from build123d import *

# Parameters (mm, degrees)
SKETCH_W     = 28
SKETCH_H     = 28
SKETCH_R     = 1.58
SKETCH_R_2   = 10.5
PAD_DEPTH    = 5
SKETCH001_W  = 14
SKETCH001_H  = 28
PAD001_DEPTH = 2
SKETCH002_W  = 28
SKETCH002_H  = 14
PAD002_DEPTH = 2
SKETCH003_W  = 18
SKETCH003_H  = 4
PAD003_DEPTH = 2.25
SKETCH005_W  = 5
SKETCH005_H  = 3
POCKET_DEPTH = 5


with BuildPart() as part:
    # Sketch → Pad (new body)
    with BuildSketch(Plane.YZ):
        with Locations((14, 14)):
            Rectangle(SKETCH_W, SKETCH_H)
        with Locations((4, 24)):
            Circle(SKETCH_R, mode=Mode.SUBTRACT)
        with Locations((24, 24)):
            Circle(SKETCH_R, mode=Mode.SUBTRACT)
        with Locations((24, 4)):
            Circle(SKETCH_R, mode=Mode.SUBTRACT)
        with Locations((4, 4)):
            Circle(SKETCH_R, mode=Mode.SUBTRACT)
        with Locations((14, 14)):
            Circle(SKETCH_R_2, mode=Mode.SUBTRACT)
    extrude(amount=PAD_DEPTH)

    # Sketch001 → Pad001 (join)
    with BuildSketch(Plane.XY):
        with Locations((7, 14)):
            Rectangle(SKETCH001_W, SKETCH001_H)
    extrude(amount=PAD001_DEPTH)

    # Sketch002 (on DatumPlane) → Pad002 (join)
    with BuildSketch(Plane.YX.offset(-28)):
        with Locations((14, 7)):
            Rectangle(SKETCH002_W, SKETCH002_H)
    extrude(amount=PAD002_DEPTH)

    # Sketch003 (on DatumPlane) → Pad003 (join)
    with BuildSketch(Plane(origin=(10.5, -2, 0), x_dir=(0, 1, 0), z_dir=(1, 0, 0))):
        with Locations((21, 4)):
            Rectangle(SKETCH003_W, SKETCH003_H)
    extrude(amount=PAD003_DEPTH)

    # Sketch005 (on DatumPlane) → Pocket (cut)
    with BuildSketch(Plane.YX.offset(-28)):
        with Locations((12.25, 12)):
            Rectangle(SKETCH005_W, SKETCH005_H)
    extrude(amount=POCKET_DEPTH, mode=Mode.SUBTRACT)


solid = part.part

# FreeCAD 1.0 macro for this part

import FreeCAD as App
import Part
import Sketcher
from FreeCAD import Vector

doc = App.newDocument("Part")
body = doc.addObject("PartDesign::Body", "Body")

# Sketch on YZ plane
sketch1 = body.newObject("Sketcher::SketchObject", "Sketch")
sketch1.AttachmentSupport = (doc.getObject("YZ_Plane"), [""])
sketch1.MapMode = "FlatFace"
sketch1.addGeometry(Part.LineSegment(Vector(0, 28, 0), Vector(0, 0, 0)), False)
sketch1.addGeometry(Part.LineSegment(Vector(0, 0, 0), Vector(28, 0, 0)), False)
sketch1.addGeometry(Part.LineSegment(Vector(28, 0, 0), Vector(28, 28, 0)), False)
sketch1.addGeometry(Part.LineSegment(Vector(28, 28, 0), Vector(0, 28, 0)), False)
sketch1.addGeometry(Part.Circle(Vector(4, 4, 0), Vector(0, 0, 1), 1.6), False)
sketch1.addGeometry(Part.Circle(Vector(24, 4, 0), Vector(0, 0, 1), 1.6), False)
sketch1.addGeometry(Part.Circle(Vector(4, 24, 0), Vector(0, 0, 1), 1.6), False)
sketch1.addGeometry(Part.Circle(Vector(14, 14, 0), Vector(0, 0, 1), 10.5), False)
sketch1.addGeometry(Part.Circle(Vector(24, 24, 0), Vector(0, 0, 1), 1.6), False)
sketch1.addConstraint(Sketcher.Constraint("Coincident", 0, 2, 1, 1))
sketch1.addConstraint(Sketcher.Constraint("Coincident", 1, 2, 2, 1))
sketch1.addConstraint(Sketcher.Constraint("Coincident", 2, 2, 3, 1))
sketch1.addConstraint(Sketcher.Constraint("Coincident", 3, 2, 0, 1))
sketch1.addConstraint(Sketcher.Constraint("Vertical", 0))
sketch1.addConstraint(Sketcher.Constraint("Horizontal", 1))
sketch1.addConstraint(Sketcher.Constraint("Vertical", 2))
sketch1.addConstraint(Sketcher.Constraint("Horizontal", 3))
sketch1.addConstraint(Sketcher.Constraint("Coincident", 0, 2, -1, 1))
sketch1.addConstraint(Sketcher.Constraint("Equal", 4, 5))
sketch1.addConstraint(Sketcher.Constraint("Equal", 5, 6))
sketch1.addConstraint(Sketcher.Constraint("Equal", 6, 8))
sketch1.addConstraint(Sketcher.Constraint("Horizontal", 4, 3, 5, 3))
sketch1.addConstraint(Sketcher.Constraint("Horizontal", 6, 3, 8, 3))
sketch1.addConstraint(Sketcher.Constraint("Vertical", 4, 3, 6, 3))
sketch1.addConstraint(Sketcher.Constraint("Vertical", 5, 3, 8, 3))
sketch1.addConstraint(Sketcher.Constraint("Equal", 3, 0))
sketch1.addConstraint(Sketcher.Constraint("Diameter", 7, 21.0))
sketch1.addConstraint(Sketcher.Constraint("Diameter", 4, 3.16))
sketch1.addConstraint(Sketcher.Constraint("DistanceX", 1, 1, 1, 2, 28.0))
sketch1.addConstraint(Sketcher.Constraint("DistanceX", -1, 1, 4, 3, 4.0))
sketch1.addConstraint(Sketcher.Constraint("DistanceY", -1, 1, 4, 3, 4.0))
sketch1.addConstraint(Sketcher.Constraint("DistanceX", -1, 1, 5, 3, 24.0))
sketch1.addConstraint(Sketcher.Constraint("DistanceY", -1, 1, 6, 3, 24.0))
sketch1.addConstraint(Sketcher.Constraint("DistanceX", -1, 1, 7, 3, 14.0))
sketch1.addConstraint(Sketcher.Constraint("DistanceY", -1, 1, 7, 3, 14.0))
pad1 = body.newObject("PartDesign::Pad", "Pad")
pad1.Profile = sketch1
pad1.Length = 5

# Sketch on XY plane
sketch2 = body.newObject("Sketcher::SketchObject", "Sketch001")
sketch2.AttachmentSupport = (doc.getObject("XY_Plane"), [""])
sketch2.MapMode = "FlatFace"
sketch2.addGeometry(Part.LineSegment(Vector(0, 28, 0), Vector(0, 0, 0)), False)
sketch2.addGeometry(Part.LineSegment(Vector(0, 0, 0), Vector(14, 0, 0)), False)
sketch2.addGeometry(Part.LineSegment(Vector(14, 0, 0), Vector(14, 28, 0)), False)
sketch2.addGeometry(Part.LineSegment(Vector(14, 28, 0), Vector(0, 28, 0)), False)
sketch2.addConstraint(Sketcher.Constraint("Coincident", 0, 2, 1, 1))
sketch2.addConstraint(Sketcher.Constraint("Coincident", 1, 2, 2, 1))
sketch2.addConstraint(Sketcher.Constraint("Coincident", 2, 2, 3, 1))
sketch2.addConstraint(Sketcher.Constraint("Coincident", 3, 2, 0, 1))
sketch2.addConstraint(Sketcher.Constraint("Vertical", 0))
sketch2.addConstraint(Sketcher.Constraint("Horizontal", 1))
sketch2.addConstraint(Sketcher.Constraint("Vertical", 2))
sketch2.addConstraint(Sketcher.Constraint("Horizontal", 3))
sketch2.addConstraint(Sketcher.Constraint("Coincident", 0, 2, -1, 1))
sketch2.addConstraint(Sketcher.Constraint("DistanceX", 1, 1, 1, 2, 14.0))
sketch2.addConstraint(Sketcher.Constraint("DistanceY", 0, 2, 0, 1, 28.0))
pad2 = body.newObject("PartDesign::Pad", "Pad001")
pad2.Profile = sketch2
pad2.Length = 2

# Sketch on XY plane
sketch3 = body.newObject("Sketcher::SketchObject", "Sketch002")
sketch3.AttachmentSupport = (doc.getObject("XY_Plane"), [""])
sketch3.MapMode = "FlatFace"
sketch3.AttachmentOffset = App.Placement(Vector(0, 0, 28), App.Rotation())
sketch3.addGeometry(Part.LineSegment(Vector(14, 0, 0), Vector(0, 0, 0)), False)
sketch3.addGeometry(Part.LineSegment(Vector(0, 0, 0), Vector(0, 28, 0)), False)
sketch3.addGeometry(Part.LineSegment(Vector(0, 28, 0), Vector(14, 28, 0)), False)
sketch3.addGeometry(Part.LineSegment(Vector(14, 28, 0), Vector(14, 0, 0)), False)
sketch3.addConstraint(Sketcher.Constraint("Coincident", 0, 2, 1, 1))
sketch3.addConstraint(Sketcher.Constraint("Coincident", 1, 2, 2, 1))
sketch3.addConstraint(Sketcher.Constraint("Coincident", 2, 2, 3, 1))
sketch3.addConstraint(Sketcher.Constraint("Coincident", 3, 2, 0, 1))
sketch3.addConstraint(Sketcher.Constraint("Horizontal", 0))
sketch3.addConstraint(Sketcher.Constraint("Vertical", 1))
sketch3.addConstraint(Sketcher.Constraint("Horizontal", 2))
sketch3.addConstraint(Sketcher.Constraint("Vertical", 3))
sketch3.addConstraint(Sketcher.Constraint("Coincident", 0, 2, -1, 1))
sketch3.addConstraint(Sketcher.Constraint("DistanceX", 0, 2, 0, 1, 14.0))
sketch3.addConstraint(Sketcher.Constraint("DistanceY", 1, 1, 1, 2, 28.0))
pad3 = body.newObject("PartDesign::Pad", "Pad002")
pad3.Profile = sketch3
pad3.Length = 2
pad3.Reversed = True

# Sketch on YZ plane
sketch4 = body.newObject("Sketcher::SketchObject", "Sketch003")
sketch4.AttachmentSupport = (doc.getObject("YZ_Plane"), [""])
sketch4.MapMode = "FlatFace"
sketch4.AttachmentOffset = App.Placement(Vector(0, 0, 10.5), App.Rotation())
sketch4.addGeometry(Part.LineSegment(Vector(10, 6, 0), Vector(10, 2, 0)), False)
sketch4.addGeometry(Part.LineSegment(Vector(10, 2, 0), Vector(28, 2, 0)), False)
sketch4.addGeometry(Part.LineSegment(Vector(28, 2, 0), Vector(28, 6, 0)), False)
sketch4.addGeometry(Part.LineSegment(Vector(28, 6, 0), Vector(10, 6, 0)), False)
sketch4.addConstraint(Sketcher.Constraint("Coincident", 0, 2, 1, 1))
sketch4.addConstraint(Sketcher.Constraint("Coincident", 1, 2, 2, 1))
sketch4.addConstraint(Sketcher.Constraint("Coincident", 2, 2, 3, 1))
sketch4.addConstraint(Sketcher.Constraint("Coincident", 3, 2, 0, 1))
sketch4.addConstraint(Sketcher.Constraint("Vertical", 0))
sketch4.addConstraint(Sketcher.Constraint("Horizontal", 1))
sketch4.addConstraint(Sketcher.Constraint("Vertical", 2))
sketch4.addConstraint(Sketcher.Constraint("Horizontal", 3))
sketch4.addConstraint(Sketcher.Constraint("DistanceX", 1, 1, 1, 2, 18.0))
sketch4.addConstraint(Sketcher.Constraint("DistanceY", 0, 2, 0, 1, 4.0))
sketch4.addConstraint(Sketcher.Constraint("DistanceX", -1, 1, 0, 2, 10.0))
sketch4.addConstraint(Sketcher.Constraint("DistanceY", -1, 1, 0, 2, 2.0))
pad4 = body.newObject("PartDesign::Pad", "Pad003")
pad4.Profile = sketch4
pad4.Length = 2.25

# Sketch on XY plane
sketch5 = body.newObject("Sketcher::SketchObject", "Sketch004")
sketch5.AttachmentSupport = (doc.getObject("XY_Plane"), [""])
sketch5.MapMode = "FlatFace"
sketch5.AttachmentOffset = App.Placement(Vector(0, 0, 28), App.Rotation())
sketch5.addGeometry(Part.LineSegment(Vector(13.5, 9.8, 0), Vector(10.5, 9.8, 0)), False)
sketch5.addGeometry(Part.LineSegment(Vector(10.5, 9.8, 0), Vector(10.5, 14.8, 0)), False)
sketch5.addGeometry(Part.LineSegment(Vector(10.5, 14.8, 0), Vector(13.5, 14.8, 0)), False)
sketch5.addGeometry(Part.LineSegment(Vector(13.5, 14.8, 0), Vector(13.5, 9.8, 0)), False)
sketch5.addConstraint(Sketcher.Constraint("Coincident", 0, 2, 1, 1))
sketch5.addConstraint(Sketcher.Constraint("Coincident", 1, 2, 2, 1))
sketch5.addConstraint(Sketcher.Constraint("Coincident", 2, 2, 3, 1))
sketch5.addConstraint(Sketcher.Constraint("Coincident", 3, 2, 0, 1))
sketch5.addConstraint(Sketcher.Constraint("Horizontal", 0))
sketch5.addConstraint(Sketcher.Constraint("Vertical", 1))
sketch5.addConstraint(Sketcher.Constraint("Horizontal", 2))
sketch5.addConstraint(Sketcher.Constraint("Vertical", 3))
sketch5.addConstraint(Sketcher.Constraint("DistanceX", 0, 2, 0, 1, 3.0))
sketch5.addConstraint(Sketcher.Constraint("DistanceY", 1, 1, 1, 2, 5.0))
sketch5.addConstraint(Sketcher.Constraint("DistanceX", -1, 1, 0, 2, 10.5))
sketch5.addConstraint(Sketcher.Constraint("DistanceY", -1, 1, 0, 2, 9.75))
pocket1 = body.newObject("PartDesign::Pocket", "Pocket")
pocket1.Profile = sketch5
pocket1.Length = 5

doc.recompute()
